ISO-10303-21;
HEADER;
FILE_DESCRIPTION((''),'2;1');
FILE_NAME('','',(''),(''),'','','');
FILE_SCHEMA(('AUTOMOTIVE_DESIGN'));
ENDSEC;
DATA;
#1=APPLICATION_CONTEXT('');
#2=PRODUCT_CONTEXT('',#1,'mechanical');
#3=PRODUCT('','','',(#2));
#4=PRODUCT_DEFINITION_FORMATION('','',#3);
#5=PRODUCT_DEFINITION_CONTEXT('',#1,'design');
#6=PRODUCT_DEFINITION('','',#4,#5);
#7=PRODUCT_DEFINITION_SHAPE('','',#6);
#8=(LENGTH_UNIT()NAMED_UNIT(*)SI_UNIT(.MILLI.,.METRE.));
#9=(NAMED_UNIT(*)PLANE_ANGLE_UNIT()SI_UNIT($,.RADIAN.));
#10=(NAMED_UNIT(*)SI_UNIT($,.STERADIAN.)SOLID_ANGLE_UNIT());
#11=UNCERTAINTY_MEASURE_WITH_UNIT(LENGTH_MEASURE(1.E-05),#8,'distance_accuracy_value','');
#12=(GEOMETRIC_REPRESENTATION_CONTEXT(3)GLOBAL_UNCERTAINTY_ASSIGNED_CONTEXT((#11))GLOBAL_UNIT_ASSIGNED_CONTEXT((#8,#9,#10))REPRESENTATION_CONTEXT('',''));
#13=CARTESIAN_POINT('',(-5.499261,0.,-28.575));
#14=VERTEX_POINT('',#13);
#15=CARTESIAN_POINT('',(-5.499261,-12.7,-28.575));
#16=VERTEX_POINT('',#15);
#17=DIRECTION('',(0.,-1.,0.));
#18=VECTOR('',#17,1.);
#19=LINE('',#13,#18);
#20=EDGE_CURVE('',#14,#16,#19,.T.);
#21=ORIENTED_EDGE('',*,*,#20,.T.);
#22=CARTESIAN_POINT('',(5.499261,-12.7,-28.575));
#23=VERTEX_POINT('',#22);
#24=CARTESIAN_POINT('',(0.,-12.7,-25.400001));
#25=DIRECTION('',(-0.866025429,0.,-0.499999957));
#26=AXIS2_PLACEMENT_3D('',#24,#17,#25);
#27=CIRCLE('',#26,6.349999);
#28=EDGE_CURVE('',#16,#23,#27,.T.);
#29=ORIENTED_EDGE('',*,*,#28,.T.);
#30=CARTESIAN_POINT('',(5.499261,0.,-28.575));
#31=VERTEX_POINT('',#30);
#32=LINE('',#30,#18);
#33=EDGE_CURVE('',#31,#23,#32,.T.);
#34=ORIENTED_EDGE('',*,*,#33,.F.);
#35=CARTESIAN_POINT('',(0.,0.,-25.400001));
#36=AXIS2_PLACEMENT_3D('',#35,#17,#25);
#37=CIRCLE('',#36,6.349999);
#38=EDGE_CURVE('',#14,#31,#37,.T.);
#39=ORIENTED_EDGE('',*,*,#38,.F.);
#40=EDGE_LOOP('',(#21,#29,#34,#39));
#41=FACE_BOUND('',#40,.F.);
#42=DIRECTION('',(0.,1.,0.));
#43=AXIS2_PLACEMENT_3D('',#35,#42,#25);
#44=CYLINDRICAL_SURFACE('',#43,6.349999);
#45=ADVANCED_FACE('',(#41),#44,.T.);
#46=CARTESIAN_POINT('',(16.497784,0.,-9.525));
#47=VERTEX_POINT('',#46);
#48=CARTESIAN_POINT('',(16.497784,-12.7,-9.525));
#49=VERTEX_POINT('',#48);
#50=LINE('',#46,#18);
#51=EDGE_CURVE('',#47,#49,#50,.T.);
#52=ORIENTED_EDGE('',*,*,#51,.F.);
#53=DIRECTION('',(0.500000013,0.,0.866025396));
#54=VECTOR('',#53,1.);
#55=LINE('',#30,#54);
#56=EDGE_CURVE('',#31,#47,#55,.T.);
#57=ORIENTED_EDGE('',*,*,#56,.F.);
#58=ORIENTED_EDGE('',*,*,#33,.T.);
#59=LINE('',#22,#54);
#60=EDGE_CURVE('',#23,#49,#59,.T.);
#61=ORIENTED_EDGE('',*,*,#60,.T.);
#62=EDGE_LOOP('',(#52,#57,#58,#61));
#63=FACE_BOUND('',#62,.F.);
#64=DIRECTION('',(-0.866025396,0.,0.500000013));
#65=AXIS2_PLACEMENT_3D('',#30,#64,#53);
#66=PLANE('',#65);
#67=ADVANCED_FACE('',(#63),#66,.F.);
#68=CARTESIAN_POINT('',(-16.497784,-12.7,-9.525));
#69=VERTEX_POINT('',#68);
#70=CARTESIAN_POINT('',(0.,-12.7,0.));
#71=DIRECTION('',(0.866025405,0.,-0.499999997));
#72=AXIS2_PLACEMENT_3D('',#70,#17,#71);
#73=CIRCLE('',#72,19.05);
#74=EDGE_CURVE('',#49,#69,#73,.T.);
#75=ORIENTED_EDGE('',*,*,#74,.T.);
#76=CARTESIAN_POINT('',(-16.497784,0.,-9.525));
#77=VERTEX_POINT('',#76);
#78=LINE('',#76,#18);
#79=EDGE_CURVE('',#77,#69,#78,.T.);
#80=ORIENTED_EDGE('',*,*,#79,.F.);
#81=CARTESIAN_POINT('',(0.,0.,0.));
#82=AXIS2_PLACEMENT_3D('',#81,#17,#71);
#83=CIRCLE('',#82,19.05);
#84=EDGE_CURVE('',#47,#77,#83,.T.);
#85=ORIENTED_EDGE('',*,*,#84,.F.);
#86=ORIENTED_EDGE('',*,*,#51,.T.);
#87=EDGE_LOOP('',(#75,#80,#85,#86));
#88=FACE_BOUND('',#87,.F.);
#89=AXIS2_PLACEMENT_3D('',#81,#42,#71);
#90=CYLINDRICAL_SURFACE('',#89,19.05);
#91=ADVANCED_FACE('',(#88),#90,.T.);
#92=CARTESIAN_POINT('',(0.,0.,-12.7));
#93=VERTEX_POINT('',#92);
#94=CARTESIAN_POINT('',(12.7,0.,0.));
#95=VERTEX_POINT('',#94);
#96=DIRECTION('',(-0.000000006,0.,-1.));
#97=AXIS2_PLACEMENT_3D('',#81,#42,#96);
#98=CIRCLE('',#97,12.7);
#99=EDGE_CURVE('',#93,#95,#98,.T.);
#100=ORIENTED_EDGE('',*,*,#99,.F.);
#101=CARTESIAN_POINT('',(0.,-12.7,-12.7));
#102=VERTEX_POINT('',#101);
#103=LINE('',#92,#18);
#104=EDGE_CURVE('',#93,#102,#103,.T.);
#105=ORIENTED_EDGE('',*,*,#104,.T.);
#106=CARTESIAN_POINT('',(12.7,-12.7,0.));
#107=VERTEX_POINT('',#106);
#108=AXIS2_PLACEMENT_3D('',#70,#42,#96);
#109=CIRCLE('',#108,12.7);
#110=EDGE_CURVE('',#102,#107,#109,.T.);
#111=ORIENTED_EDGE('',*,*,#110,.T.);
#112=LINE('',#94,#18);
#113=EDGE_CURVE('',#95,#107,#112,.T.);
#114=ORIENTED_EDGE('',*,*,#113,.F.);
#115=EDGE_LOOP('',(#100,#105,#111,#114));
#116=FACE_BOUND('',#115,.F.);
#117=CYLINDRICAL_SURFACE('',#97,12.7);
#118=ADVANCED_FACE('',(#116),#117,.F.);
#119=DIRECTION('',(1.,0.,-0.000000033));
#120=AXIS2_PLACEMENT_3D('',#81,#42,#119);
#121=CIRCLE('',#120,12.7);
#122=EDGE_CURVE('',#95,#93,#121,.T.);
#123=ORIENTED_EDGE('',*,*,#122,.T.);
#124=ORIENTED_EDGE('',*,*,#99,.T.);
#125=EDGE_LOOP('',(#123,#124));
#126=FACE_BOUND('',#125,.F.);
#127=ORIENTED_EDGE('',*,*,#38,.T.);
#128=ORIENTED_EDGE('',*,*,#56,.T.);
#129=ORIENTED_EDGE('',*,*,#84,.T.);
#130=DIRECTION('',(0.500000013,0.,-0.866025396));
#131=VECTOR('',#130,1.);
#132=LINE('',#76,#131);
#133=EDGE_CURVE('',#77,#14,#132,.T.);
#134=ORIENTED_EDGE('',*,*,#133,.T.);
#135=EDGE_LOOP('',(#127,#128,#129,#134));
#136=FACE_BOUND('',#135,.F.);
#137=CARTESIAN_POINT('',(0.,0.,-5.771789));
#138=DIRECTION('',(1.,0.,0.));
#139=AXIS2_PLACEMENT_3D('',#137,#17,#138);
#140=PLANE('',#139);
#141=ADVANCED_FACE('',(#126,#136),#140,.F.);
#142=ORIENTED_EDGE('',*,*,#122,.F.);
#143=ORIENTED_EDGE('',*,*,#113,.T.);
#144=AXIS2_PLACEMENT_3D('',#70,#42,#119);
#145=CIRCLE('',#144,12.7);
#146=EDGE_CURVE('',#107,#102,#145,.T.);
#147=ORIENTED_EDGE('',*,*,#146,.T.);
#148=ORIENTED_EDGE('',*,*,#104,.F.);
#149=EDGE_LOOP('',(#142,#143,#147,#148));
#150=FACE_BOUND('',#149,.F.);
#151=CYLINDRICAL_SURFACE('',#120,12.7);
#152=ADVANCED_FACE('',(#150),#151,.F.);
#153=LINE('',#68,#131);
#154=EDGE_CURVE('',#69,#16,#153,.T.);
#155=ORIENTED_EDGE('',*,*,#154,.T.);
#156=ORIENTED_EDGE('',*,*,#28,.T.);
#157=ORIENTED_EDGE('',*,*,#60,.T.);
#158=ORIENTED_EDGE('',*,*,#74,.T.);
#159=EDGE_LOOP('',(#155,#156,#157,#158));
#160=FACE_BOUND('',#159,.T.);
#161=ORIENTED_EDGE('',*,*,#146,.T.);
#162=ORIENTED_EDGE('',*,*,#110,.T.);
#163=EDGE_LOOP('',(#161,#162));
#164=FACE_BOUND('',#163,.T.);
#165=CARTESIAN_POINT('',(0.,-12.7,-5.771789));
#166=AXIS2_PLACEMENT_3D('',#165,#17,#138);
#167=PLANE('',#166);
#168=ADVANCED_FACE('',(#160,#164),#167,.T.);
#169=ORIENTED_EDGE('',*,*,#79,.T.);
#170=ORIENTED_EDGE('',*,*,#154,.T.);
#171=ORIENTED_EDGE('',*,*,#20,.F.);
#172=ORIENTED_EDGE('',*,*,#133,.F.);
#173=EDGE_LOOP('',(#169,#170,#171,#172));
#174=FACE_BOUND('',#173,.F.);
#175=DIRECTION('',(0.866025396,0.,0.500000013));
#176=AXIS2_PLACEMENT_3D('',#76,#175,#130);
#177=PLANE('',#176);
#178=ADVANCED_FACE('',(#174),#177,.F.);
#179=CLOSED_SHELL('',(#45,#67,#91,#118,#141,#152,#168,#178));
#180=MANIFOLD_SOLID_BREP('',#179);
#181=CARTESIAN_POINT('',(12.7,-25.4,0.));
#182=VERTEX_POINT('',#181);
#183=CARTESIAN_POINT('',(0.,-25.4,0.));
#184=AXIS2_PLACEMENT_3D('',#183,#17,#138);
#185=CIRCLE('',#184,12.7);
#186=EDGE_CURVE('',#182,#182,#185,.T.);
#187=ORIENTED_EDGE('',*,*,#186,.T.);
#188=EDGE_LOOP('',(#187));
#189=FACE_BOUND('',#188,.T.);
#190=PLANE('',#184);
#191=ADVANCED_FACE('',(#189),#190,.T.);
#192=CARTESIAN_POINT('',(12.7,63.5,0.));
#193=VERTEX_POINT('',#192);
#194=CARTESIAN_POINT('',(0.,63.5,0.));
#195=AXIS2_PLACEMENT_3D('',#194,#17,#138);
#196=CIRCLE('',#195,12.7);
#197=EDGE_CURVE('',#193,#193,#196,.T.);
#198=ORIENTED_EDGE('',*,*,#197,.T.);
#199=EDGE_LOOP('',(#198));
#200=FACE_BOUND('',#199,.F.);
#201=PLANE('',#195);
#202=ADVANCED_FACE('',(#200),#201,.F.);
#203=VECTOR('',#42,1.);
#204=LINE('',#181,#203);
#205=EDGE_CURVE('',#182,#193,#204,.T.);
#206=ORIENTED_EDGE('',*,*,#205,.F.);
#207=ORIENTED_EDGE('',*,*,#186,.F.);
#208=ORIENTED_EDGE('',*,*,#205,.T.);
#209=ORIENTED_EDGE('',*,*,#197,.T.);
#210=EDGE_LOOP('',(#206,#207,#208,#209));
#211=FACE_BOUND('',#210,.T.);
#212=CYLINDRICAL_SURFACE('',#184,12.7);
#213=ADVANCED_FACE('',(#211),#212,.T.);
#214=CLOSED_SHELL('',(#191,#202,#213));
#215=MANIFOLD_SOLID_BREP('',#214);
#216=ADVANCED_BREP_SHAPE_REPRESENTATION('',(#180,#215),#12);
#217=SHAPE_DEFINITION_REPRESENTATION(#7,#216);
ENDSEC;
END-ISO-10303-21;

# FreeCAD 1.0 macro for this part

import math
import FreeCAD as App
import Part
import Sketcher

V = App.Vector
Q = App.Units.Quantity

doc = App.newDocument("Part")
body = doc.addObject("PartDesign::Body", "Body")

sketch1 = doc.addObject("Sketcher::SketchObject", "Sketch")
body.addObject(sketch1)
sketch1.AttachmentSupport = (doc.XZ_Plane, [""])
sketch1.MapMode = "FlatFace"
sketch1.addGeometry(Part.LineSegment(V(5, -29, 0), V(16, -10, 0)), False)
sketch1.addGeometry(Part.ArcOfCircle(Part.Circle(V(0, 0, 0), V(0, 0, 1), 19), math.radians(-30), math.radians(210)), False)
sketch1.addGeometry(Part.LineSegment(V(-16, -10, 0), V(-5, -29, 0)), False)
sketch1.addGeometry(Part.ArcOfCircle(Part.Circle(V(0, -25, 0), V(0, 0, 1), 6), math.radians(-150), math.radians(-30)), False)
sketch1.addGeometry(Part.ArcOfCircle(Part.Circle(V(0, 0, 0), V(0, 0, 1), 13), math.radians(-90), math.radians(0)), False)
sketch1.addGeometry(Part.ArcOfCircle(Part.Circle(V(0, 0, 0), V(0, 0, 1), 13), math.radians(0), math.radians(270)), False)
sketch1.addConstraint(Sketcher.Constraint("Tangent", 0, 2, 1, 1))
sketch1.addConstraint(Sketcher.Constraint("Tangent", 1, 2, 2, 1))
sketch1.addConstraint(Sketcher.Constraint("Tangent", 2, 2, 3, 1))
sketch1.addConstraint(Sketcher.Constraint("Tangent", 3, 2, 0, 1))
sketch1.addConstraint(Sketcher.Constraint("Tangent", 4, 1, 5, 2))
sketch1.addConstraint(Sketcher.Constraint("Coincident", 5, 1, 4, 2))
sketch1.addConstraint(Sketcher.Constraint("Coincident", 1, 3, -1, 1))
sketch1.addConstraint(Sketcher.Constraint("Coincident", 4, 3, -1, 1))
sketch1.addConstraint(Sketcher.Constraint("PointOnObject", 3, 3, -2))
sketch1.addConstraint(Sketcher.Constraint("PointOnObject", 4, 1, -2))
sketch1.addConstraint(Sketcher.Constraint("PointOnObject", 5, 1, -1))
sketch1.addConstraint(Sketcher.Constraint("Radius", 4, Q("0.5 in")))
sketch1.addConstraint(Sketcher.Constraint("Radius", 1, Q("0.75 in")))
sketch1.addConstraint(Sketcher.Constraint("Radius", 3, Q("0.25 in")))
sketch1.addConstraint(Sketcher.Constraint("DistanceY", 3, 3, -1, 1, Q("1 in")))
pad1 = doc.addObject("PartDesign::Pad", "Pad")
body.addObject(pad1)
pad1.Profile = sketch1
pad1.Length = Q("0.5 in")
body2 = doc.addObject("PartDesign::Body", "Body001")

sketch2 = doc.addObject("Sketcher::SketchObject", "Sketch001")
body2.addObject(sketch2)
sketch2.AttachmentSupport = (doc.getObject("XZ_Plane001"), [""])
sketch2.MapMode = "FlatFace"
sketch2.AttachmentOffset = App.Placement(V(0, 0, 1 * 25.4), App.Rotation())
sketch2.addGeometry(Part.Circle(V(0, 0, 0), V(0, 0, 1), 13), False)
sketch2.addConstraint(Sketcher.Constraint("Coincident", 0, 3, -1, 1))
sketch2.addConstraint(Sketcher.Constraint("Diameter", 0, Q("1 in")))
pad2 = doc.addObject("PartDesign::Pad", "Pad001")
body2.addObject(pad2)
pad2.Profile = sketch2
pad2.Length = Q("3.5 in")
pad2.Reversed = True

doc.recompute()
